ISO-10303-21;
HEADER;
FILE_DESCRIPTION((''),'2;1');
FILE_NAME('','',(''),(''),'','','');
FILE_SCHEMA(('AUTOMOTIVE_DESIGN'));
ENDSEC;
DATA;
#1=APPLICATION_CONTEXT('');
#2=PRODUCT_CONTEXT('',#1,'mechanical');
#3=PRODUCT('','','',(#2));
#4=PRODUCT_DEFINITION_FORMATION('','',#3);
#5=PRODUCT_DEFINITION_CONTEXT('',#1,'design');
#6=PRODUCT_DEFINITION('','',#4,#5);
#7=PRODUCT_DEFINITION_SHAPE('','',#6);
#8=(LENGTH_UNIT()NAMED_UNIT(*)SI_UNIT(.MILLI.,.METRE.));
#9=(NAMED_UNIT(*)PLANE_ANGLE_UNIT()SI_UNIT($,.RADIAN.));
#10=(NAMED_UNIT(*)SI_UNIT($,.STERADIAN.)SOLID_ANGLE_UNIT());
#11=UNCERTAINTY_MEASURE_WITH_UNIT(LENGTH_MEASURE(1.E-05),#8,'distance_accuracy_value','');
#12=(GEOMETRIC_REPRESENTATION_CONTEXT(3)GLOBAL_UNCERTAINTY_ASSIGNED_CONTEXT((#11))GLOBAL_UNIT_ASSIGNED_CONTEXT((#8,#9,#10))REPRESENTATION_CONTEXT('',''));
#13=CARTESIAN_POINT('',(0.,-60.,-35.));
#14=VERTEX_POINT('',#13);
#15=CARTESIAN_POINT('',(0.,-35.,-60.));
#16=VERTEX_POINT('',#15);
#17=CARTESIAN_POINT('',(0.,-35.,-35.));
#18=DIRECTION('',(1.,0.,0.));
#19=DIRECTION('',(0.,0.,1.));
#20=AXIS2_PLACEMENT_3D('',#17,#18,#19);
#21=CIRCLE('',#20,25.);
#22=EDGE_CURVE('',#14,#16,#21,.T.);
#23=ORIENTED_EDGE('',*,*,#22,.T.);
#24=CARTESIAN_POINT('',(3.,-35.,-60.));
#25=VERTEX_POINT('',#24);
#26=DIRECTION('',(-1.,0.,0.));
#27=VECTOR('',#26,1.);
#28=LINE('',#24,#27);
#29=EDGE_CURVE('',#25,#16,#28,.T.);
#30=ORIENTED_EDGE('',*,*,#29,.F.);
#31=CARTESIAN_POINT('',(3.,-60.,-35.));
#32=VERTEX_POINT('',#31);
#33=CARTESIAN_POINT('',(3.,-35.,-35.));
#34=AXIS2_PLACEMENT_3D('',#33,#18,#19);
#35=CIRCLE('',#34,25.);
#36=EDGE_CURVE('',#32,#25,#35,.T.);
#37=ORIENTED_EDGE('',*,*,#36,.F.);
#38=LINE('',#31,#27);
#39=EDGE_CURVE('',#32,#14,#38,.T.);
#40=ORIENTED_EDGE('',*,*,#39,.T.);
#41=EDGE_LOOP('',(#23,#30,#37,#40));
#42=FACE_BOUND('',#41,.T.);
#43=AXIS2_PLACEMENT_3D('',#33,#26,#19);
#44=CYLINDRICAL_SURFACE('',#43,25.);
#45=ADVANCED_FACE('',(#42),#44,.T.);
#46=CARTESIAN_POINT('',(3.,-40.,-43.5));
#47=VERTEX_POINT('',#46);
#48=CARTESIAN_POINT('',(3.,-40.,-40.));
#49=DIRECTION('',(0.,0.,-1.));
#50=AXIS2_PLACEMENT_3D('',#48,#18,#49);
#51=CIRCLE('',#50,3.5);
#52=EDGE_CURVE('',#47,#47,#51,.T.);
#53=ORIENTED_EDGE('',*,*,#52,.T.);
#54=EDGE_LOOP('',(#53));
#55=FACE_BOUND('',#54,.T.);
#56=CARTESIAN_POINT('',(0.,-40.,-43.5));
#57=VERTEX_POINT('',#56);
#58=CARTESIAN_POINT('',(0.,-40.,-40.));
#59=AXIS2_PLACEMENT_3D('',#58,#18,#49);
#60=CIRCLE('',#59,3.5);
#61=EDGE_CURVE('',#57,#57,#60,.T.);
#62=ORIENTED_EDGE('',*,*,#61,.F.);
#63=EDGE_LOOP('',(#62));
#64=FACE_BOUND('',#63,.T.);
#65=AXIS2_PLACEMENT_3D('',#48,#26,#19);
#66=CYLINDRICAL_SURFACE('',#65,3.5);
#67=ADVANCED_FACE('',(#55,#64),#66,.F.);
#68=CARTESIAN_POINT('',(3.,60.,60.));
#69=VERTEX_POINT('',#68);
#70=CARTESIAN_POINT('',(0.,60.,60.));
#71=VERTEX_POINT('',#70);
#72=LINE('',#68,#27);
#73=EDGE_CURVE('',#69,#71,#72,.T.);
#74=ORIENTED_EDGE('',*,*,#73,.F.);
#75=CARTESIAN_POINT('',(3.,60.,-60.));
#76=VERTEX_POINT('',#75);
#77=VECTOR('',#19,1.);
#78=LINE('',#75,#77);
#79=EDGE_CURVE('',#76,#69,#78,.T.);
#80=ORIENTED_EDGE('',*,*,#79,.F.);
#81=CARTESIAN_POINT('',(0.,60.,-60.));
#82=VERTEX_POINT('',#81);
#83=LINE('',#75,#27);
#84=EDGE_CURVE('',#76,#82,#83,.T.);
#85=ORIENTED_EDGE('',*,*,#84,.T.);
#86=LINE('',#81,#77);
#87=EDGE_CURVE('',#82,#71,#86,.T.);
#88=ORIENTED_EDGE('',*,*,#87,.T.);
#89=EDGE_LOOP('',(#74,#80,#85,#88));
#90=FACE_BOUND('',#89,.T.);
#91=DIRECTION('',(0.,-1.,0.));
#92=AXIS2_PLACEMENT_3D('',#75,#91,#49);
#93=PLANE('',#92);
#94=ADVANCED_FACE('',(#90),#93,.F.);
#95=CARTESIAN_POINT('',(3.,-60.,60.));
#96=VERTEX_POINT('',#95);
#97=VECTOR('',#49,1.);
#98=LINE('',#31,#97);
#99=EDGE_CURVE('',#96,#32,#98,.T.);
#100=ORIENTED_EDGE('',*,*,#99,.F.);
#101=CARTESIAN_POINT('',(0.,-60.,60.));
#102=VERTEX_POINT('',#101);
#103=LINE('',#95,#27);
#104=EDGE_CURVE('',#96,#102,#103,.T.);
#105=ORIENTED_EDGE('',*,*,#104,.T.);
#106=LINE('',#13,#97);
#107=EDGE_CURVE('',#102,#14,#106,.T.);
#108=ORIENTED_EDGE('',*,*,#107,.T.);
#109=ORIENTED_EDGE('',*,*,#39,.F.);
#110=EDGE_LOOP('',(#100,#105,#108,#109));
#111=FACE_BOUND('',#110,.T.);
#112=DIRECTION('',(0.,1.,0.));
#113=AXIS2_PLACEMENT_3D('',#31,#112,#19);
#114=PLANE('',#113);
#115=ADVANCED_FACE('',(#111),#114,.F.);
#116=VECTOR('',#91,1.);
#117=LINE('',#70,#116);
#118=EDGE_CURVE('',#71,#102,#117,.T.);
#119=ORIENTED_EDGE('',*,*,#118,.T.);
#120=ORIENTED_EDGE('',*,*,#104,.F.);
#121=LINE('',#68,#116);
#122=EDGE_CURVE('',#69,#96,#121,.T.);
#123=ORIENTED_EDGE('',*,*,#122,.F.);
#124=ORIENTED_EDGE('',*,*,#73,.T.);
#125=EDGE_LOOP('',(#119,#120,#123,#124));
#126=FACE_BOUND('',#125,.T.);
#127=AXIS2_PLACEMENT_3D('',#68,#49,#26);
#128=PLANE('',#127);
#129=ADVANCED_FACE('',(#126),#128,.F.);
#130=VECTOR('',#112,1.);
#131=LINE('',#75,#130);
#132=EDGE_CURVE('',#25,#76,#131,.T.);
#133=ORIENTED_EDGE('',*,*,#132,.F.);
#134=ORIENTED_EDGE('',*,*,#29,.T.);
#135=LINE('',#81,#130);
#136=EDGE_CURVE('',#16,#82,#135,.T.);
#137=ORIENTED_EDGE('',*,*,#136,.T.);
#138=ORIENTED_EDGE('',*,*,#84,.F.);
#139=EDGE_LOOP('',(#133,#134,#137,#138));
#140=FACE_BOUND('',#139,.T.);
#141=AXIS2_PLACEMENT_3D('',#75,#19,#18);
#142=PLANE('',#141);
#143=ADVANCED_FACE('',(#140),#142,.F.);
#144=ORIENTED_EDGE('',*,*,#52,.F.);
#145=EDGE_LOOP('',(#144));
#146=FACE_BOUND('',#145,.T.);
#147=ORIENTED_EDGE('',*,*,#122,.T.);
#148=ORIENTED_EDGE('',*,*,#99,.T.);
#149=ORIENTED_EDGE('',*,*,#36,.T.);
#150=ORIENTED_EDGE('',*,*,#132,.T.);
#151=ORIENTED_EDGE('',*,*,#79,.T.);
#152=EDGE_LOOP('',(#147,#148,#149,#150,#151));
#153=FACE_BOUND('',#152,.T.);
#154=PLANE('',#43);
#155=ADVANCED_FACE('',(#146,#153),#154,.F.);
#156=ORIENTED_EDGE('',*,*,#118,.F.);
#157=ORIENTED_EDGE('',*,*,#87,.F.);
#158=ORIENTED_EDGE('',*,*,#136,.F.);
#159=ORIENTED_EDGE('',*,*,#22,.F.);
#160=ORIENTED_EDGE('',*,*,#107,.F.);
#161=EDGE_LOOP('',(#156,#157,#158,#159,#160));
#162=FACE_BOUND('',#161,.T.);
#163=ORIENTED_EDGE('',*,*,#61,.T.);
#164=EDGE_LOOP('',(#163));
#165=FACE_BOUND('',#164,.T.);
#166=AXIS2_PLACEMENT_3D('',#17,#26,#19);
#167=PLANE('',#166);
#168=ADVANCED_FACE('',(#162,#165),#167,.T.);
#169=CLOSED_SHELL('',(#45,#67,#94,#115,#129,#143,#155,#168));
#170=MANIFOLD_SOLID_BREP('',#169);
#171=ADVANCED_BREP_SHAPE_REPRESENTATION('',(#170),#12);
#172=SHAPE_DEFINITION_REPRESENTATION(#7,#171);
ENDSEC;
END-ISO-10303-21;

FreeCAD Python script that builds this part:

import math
import FreeCAD as App
import Part
import Sketcher
from FreeCAD import Vector
Q = App.Units.Quantity

doc = App.newDocument("Part")
params = doc.addObject("Spreadsheet::Sheet", "Params")
for row, (alias, value) in enumerate([
    ("sketch1_diameter", "7 mm"),
    ("sketch1_radius", "25 mm"),
    ("sketch1_width", "120 mm"),
    ("pad1_length", "3 mm"),
], start=1):
    params.set(f"A{row}", alias)
    params.set(f"B{row}", "=" + value)
    params.setAlias(f"B{row}", alias)

body = doc.addObject("PartDesign::Body", "Body")

sketch1 = doc.addObject("Sketcher::SketchObject", "Sketch")
body.addObject(sketch1)
sketch1.AttachmentSupport = (doc.YZ_Plane, [""])
sketch1.MapMode = "FlatFace"
sketch1.addGeometry([
    Part.LineSegment(Vector(60, -60, 0), Vector(60, 60, 0)),
    Part.LineSegment(Vector(60, 60, 0), Vector(-60, 60, 0)),
    Part.LineSegment(Vector(-60, 60, 0), Vector(-60, -35, 0)),
    Part.ArcOfCircle(Part.Circle(Vector(-35, -35, 0), Vector(0, 0, 1), 25), math.radians(180), math.radians(270)),
    Part.LineSegment(Vector(-35, -60, 0), Vector(60, -60, 0)),
    Part.Circle(Vector(-40, -40, 0), Vector(0, 0, 1), 3.5),
], False)
sketch1.addConstraint([
    Sketcher.Constraint("Coincident", 0, 2, 1, 1),
    Sketcher.Constraint("Coincident", 1, 2, 2, 1),
    Sketcher.Constraint("Tangent", 2, 2, 3, 1),
    Sketcher.Constraint("Tangent", 3, 2, 4, 1),
    Sketcher.Constraint("Coincident", 4, 2, 0, 1),
    Sketcher.Constraint("Vertical", 0),
    Sketcher.Constraint("Horizontal", 1),
    Sketcher.Constraint("Vertical", 2),
    Sketcher.Constraint("Horizontal", 4),
    Sketcher.Constraint("Symmetric", 1, 2, 4, 2, -1, 1),
    Sketcher.Constraint("Equal", 1, 0),
    Sketcher.Constraint("Diameter", 5, Q("7 mm")),
    Sketcher.Constraint("Radius", 3, Q("25 mm")),
    Sketcher.Constraint("DistanceX", 1, 2, 1, 1, Q("120 mm")),
    Sketcher.Constraint("DistanceX", 5, 3, -1, 1, Q("40 mm")),
    Sketcher.Constraint("DistanceY", 5, 3, -1, 1, Q("40 mm")),
])
sketch1.setExpression("Constraints[11]", "Params.sketch1_diameter")
sketch1.setExpression("Constraints[12]", "Params.sketch1_radius")
sketch1.setExpression("Constraints[13]", "Params.sketch1_width")
pad1 = doc.addObject("PartDesign::Pad", "Pad")
body.addObject(pad1)
pad1.Profile = sketch1
pad1.setExpression("Length", "Params.pad1_length")

doc.recompute()
